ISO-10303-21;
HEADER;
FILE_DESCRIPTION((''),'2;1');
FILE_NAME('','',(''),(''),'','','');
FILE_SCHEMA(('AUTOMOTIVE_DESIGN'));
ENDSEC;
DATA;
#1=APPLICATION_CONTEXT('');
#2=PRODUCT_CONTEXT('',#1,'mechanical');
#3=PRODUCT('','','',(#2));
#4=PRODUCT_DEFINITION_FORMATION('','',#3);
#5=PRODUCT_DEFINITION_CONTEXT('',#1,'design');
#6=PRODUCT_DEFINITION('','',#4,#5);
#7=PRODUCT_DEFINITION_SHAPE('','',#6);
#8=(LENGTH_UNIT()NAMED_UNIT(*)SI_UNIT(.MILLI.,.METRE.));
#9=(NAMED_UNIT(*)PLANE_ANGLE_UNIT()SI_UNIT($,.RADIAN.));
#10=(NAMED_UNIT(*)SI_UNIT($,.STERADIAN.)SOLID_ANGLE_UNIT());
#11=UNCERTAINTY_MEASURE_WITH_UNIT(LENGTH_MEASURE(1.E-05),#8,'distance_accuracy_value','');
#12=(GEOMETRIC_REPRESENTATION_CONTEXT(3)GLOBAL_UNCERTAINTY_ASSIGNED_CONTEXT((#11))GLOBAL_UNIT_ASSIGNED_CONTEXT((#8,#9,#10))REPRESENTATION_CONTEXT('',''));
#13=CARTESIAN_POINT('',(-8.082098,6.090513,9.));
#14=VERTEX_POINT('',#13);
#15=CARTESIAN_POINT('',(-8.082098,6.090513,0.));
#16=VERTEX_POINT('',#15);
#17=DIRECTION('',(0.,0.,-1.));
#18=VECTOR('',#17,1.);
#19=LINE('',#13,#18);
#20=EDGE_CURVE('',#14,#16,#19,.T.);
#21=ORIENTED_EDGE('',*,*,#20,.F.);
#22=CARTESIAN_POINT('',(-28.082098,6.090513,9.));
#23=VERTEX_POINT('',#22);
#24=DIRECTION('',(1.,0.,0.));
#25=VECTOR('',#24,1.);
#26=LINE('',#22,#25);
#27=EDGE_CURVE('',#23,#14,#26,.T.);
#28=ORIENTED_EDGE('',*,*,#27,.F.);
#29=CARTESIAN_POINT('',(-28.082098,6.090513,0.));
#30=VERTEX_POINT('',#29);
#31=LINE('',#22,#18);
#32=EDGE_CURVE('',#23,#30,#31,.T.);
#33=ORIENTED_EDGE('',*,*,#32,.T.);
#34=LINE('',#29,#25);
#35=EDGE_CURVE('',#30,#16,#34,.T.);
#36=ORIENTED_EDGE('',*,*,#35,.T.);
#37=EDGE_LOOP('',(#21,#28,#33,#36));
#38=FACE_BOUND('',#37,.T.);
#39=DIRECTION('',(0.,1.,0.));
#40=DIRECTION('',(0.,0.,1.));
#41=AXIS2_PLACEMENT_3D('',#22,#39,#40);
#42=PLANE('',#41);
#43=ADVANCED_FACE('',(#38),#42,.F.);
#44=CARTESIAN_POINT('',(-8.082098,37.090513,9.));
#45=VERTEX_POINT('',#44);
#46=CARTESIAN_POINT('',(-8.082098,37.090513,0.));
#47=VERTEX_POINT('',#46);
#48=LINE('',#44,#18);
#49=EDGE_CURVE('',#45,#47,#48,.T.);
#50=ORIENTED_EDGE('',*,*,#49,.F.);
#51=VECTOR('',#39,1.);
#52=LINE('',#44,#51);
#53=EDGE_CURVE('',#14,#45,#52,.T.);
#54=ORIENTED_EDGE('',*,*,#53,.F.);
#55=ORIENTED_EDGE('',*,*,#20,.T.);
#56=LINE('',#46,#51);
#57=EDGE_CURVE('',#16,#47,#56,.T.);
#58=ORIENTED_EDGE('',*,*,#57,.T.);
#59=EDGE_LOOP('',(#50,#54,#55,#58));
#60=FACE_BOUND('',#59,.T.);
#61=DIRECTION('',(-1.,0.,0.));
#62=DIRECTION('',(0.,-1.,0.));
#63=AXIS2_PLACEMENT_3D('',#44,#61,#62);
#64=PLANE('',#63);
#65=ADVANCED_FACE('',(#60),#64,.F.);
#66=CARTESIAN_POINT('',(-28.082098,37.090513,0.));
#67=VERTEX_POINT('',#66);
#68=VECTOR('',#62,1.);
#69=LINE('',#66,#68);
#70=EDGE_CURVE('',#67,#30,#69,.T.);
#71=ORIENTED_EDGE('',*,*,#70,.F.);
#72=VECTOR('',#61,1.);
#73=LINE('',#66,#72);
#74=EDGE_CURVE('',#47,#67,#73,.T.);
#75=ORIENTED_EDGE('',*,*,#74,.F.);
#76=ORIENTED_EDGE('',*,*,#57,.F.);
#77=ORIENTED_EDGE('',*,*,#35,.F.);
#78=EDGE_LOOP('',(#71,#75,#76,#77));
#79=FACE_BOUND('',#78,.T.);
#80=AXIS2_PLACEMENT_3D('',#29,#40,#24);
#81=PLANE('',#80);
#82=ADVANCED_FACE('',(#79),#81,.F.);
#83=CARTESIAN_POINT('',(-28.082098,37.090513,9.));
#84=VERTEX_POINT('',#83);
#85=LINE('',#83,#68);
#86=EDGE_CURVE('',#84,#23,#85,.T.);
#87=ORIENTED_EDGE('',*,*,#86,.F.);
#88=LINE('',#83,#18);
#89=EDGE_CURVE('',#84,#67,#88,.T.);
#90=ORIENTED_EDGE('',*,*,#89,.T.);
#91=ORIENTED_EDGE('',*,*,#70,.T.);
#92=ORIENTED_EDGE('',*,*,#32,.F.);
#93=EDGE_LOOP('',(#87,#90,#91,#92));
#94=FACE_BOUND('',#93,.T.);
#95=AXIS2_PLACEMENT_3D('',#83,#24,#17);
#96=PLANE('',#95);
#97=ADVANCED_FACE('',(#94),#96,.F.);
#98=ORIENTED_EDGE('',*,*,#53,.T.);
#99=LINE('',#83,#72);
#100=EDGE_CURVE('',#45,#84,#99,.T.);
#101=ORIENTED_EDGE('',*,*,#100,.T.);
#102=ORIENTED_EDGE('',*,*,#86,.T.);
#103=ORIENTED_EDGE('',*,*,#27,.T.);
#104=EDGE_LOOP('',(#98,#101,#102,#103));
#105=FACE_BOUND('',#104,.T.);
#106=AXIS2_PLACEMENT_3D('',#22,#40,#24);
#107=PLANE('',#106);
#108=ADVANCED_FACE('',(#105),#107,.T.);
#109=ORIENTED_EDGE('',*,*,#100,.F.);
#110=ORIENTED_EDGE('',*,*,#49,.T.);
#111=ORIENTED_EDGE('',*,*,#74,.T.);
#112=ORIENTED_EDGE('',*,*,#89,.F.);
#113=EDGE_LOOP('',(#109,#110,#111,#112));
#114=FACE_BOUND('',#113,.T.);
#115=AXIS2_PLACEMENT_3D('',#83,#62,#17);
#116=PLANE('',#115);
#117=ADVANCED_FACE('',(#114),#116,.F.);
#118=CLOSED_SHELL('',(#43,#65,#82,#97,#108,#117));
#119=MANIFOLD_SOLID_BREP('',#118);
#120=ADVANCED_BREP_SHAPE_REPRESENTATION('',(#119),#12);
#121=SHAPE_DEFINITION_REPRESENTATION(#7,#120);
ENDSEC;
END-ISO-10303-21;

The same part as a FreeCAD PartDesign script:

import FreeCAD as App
import Part
import Sketcher

V = App.Vector
Q = App.Units.Quantity


def add_polygon(sketch, points):
    """Adds a closed chain of lines whose ends are joined by coincident constraints."""
    first, n = sketch.GeometryCount, len(points)
    for a, b in zip(points, points[1:] + points[:1]):
        sketch.addGeometry(Part.LineSegment(App.Vector(*a, 0), App.Vector(*b, 0)), False)
    for i in range(n):
        sketch.addConstraint(Sketcher.Constraint("Coincident", first + i, 2, first + (i + 1) % n, 1))

doc = App.newDocument("Part")
body = doc.addObject("PartDesign::Body", "Body")

# Sketch on XY plane
sketch1 = doc.addObject("Sketcher::SketchObject", "Sketch")
body.addObject(sketch1)
sketch1.AttachmentSupport = (doc.XY_Plane, [""])
sketch1.MapMode = "FlatFace"
add_polygon(sketch1, [(-28, 37), (-28, 6), (-8, 6), (-8, 37)])  # lines 0-3
sketch1.addConstraint(Sketcher.Constraint("Vertical", 0))
sketch1.addConstraint(Sketcher.Constraint("Horizontal", 1))
sketch1.addConstraint(Sketcher.Constraint("Vertical", 2))
sketch1.addConstraint(Sketcher.Constraint("Horizontal", 3))
sketch1.addConstraint(Sketcher.Constraint("DistanceX", 1, 1, 1, 2, Q("20 mm")))
sketch1.addConstraint(Sketcher.Constraint("DistanceY", 0, 2, 0, 1, Q("31 mm")))
sketch1.addConstraint(Sketcher.Constraint("DistanceX", 0, 2, -1, 1, Q("28.082098 mm")))
sketch1.addConstraint(Sketcher.Constraint("DistanceY", -1, 1, 0, 2, Q("6.090513 mm")))
pad1 = doc.addObject("PartDesign::Pad", "Pad")
body.addObject(pad1)
pad1.Profile = sketch1
pad1.Length = 9

doc.recompute()
